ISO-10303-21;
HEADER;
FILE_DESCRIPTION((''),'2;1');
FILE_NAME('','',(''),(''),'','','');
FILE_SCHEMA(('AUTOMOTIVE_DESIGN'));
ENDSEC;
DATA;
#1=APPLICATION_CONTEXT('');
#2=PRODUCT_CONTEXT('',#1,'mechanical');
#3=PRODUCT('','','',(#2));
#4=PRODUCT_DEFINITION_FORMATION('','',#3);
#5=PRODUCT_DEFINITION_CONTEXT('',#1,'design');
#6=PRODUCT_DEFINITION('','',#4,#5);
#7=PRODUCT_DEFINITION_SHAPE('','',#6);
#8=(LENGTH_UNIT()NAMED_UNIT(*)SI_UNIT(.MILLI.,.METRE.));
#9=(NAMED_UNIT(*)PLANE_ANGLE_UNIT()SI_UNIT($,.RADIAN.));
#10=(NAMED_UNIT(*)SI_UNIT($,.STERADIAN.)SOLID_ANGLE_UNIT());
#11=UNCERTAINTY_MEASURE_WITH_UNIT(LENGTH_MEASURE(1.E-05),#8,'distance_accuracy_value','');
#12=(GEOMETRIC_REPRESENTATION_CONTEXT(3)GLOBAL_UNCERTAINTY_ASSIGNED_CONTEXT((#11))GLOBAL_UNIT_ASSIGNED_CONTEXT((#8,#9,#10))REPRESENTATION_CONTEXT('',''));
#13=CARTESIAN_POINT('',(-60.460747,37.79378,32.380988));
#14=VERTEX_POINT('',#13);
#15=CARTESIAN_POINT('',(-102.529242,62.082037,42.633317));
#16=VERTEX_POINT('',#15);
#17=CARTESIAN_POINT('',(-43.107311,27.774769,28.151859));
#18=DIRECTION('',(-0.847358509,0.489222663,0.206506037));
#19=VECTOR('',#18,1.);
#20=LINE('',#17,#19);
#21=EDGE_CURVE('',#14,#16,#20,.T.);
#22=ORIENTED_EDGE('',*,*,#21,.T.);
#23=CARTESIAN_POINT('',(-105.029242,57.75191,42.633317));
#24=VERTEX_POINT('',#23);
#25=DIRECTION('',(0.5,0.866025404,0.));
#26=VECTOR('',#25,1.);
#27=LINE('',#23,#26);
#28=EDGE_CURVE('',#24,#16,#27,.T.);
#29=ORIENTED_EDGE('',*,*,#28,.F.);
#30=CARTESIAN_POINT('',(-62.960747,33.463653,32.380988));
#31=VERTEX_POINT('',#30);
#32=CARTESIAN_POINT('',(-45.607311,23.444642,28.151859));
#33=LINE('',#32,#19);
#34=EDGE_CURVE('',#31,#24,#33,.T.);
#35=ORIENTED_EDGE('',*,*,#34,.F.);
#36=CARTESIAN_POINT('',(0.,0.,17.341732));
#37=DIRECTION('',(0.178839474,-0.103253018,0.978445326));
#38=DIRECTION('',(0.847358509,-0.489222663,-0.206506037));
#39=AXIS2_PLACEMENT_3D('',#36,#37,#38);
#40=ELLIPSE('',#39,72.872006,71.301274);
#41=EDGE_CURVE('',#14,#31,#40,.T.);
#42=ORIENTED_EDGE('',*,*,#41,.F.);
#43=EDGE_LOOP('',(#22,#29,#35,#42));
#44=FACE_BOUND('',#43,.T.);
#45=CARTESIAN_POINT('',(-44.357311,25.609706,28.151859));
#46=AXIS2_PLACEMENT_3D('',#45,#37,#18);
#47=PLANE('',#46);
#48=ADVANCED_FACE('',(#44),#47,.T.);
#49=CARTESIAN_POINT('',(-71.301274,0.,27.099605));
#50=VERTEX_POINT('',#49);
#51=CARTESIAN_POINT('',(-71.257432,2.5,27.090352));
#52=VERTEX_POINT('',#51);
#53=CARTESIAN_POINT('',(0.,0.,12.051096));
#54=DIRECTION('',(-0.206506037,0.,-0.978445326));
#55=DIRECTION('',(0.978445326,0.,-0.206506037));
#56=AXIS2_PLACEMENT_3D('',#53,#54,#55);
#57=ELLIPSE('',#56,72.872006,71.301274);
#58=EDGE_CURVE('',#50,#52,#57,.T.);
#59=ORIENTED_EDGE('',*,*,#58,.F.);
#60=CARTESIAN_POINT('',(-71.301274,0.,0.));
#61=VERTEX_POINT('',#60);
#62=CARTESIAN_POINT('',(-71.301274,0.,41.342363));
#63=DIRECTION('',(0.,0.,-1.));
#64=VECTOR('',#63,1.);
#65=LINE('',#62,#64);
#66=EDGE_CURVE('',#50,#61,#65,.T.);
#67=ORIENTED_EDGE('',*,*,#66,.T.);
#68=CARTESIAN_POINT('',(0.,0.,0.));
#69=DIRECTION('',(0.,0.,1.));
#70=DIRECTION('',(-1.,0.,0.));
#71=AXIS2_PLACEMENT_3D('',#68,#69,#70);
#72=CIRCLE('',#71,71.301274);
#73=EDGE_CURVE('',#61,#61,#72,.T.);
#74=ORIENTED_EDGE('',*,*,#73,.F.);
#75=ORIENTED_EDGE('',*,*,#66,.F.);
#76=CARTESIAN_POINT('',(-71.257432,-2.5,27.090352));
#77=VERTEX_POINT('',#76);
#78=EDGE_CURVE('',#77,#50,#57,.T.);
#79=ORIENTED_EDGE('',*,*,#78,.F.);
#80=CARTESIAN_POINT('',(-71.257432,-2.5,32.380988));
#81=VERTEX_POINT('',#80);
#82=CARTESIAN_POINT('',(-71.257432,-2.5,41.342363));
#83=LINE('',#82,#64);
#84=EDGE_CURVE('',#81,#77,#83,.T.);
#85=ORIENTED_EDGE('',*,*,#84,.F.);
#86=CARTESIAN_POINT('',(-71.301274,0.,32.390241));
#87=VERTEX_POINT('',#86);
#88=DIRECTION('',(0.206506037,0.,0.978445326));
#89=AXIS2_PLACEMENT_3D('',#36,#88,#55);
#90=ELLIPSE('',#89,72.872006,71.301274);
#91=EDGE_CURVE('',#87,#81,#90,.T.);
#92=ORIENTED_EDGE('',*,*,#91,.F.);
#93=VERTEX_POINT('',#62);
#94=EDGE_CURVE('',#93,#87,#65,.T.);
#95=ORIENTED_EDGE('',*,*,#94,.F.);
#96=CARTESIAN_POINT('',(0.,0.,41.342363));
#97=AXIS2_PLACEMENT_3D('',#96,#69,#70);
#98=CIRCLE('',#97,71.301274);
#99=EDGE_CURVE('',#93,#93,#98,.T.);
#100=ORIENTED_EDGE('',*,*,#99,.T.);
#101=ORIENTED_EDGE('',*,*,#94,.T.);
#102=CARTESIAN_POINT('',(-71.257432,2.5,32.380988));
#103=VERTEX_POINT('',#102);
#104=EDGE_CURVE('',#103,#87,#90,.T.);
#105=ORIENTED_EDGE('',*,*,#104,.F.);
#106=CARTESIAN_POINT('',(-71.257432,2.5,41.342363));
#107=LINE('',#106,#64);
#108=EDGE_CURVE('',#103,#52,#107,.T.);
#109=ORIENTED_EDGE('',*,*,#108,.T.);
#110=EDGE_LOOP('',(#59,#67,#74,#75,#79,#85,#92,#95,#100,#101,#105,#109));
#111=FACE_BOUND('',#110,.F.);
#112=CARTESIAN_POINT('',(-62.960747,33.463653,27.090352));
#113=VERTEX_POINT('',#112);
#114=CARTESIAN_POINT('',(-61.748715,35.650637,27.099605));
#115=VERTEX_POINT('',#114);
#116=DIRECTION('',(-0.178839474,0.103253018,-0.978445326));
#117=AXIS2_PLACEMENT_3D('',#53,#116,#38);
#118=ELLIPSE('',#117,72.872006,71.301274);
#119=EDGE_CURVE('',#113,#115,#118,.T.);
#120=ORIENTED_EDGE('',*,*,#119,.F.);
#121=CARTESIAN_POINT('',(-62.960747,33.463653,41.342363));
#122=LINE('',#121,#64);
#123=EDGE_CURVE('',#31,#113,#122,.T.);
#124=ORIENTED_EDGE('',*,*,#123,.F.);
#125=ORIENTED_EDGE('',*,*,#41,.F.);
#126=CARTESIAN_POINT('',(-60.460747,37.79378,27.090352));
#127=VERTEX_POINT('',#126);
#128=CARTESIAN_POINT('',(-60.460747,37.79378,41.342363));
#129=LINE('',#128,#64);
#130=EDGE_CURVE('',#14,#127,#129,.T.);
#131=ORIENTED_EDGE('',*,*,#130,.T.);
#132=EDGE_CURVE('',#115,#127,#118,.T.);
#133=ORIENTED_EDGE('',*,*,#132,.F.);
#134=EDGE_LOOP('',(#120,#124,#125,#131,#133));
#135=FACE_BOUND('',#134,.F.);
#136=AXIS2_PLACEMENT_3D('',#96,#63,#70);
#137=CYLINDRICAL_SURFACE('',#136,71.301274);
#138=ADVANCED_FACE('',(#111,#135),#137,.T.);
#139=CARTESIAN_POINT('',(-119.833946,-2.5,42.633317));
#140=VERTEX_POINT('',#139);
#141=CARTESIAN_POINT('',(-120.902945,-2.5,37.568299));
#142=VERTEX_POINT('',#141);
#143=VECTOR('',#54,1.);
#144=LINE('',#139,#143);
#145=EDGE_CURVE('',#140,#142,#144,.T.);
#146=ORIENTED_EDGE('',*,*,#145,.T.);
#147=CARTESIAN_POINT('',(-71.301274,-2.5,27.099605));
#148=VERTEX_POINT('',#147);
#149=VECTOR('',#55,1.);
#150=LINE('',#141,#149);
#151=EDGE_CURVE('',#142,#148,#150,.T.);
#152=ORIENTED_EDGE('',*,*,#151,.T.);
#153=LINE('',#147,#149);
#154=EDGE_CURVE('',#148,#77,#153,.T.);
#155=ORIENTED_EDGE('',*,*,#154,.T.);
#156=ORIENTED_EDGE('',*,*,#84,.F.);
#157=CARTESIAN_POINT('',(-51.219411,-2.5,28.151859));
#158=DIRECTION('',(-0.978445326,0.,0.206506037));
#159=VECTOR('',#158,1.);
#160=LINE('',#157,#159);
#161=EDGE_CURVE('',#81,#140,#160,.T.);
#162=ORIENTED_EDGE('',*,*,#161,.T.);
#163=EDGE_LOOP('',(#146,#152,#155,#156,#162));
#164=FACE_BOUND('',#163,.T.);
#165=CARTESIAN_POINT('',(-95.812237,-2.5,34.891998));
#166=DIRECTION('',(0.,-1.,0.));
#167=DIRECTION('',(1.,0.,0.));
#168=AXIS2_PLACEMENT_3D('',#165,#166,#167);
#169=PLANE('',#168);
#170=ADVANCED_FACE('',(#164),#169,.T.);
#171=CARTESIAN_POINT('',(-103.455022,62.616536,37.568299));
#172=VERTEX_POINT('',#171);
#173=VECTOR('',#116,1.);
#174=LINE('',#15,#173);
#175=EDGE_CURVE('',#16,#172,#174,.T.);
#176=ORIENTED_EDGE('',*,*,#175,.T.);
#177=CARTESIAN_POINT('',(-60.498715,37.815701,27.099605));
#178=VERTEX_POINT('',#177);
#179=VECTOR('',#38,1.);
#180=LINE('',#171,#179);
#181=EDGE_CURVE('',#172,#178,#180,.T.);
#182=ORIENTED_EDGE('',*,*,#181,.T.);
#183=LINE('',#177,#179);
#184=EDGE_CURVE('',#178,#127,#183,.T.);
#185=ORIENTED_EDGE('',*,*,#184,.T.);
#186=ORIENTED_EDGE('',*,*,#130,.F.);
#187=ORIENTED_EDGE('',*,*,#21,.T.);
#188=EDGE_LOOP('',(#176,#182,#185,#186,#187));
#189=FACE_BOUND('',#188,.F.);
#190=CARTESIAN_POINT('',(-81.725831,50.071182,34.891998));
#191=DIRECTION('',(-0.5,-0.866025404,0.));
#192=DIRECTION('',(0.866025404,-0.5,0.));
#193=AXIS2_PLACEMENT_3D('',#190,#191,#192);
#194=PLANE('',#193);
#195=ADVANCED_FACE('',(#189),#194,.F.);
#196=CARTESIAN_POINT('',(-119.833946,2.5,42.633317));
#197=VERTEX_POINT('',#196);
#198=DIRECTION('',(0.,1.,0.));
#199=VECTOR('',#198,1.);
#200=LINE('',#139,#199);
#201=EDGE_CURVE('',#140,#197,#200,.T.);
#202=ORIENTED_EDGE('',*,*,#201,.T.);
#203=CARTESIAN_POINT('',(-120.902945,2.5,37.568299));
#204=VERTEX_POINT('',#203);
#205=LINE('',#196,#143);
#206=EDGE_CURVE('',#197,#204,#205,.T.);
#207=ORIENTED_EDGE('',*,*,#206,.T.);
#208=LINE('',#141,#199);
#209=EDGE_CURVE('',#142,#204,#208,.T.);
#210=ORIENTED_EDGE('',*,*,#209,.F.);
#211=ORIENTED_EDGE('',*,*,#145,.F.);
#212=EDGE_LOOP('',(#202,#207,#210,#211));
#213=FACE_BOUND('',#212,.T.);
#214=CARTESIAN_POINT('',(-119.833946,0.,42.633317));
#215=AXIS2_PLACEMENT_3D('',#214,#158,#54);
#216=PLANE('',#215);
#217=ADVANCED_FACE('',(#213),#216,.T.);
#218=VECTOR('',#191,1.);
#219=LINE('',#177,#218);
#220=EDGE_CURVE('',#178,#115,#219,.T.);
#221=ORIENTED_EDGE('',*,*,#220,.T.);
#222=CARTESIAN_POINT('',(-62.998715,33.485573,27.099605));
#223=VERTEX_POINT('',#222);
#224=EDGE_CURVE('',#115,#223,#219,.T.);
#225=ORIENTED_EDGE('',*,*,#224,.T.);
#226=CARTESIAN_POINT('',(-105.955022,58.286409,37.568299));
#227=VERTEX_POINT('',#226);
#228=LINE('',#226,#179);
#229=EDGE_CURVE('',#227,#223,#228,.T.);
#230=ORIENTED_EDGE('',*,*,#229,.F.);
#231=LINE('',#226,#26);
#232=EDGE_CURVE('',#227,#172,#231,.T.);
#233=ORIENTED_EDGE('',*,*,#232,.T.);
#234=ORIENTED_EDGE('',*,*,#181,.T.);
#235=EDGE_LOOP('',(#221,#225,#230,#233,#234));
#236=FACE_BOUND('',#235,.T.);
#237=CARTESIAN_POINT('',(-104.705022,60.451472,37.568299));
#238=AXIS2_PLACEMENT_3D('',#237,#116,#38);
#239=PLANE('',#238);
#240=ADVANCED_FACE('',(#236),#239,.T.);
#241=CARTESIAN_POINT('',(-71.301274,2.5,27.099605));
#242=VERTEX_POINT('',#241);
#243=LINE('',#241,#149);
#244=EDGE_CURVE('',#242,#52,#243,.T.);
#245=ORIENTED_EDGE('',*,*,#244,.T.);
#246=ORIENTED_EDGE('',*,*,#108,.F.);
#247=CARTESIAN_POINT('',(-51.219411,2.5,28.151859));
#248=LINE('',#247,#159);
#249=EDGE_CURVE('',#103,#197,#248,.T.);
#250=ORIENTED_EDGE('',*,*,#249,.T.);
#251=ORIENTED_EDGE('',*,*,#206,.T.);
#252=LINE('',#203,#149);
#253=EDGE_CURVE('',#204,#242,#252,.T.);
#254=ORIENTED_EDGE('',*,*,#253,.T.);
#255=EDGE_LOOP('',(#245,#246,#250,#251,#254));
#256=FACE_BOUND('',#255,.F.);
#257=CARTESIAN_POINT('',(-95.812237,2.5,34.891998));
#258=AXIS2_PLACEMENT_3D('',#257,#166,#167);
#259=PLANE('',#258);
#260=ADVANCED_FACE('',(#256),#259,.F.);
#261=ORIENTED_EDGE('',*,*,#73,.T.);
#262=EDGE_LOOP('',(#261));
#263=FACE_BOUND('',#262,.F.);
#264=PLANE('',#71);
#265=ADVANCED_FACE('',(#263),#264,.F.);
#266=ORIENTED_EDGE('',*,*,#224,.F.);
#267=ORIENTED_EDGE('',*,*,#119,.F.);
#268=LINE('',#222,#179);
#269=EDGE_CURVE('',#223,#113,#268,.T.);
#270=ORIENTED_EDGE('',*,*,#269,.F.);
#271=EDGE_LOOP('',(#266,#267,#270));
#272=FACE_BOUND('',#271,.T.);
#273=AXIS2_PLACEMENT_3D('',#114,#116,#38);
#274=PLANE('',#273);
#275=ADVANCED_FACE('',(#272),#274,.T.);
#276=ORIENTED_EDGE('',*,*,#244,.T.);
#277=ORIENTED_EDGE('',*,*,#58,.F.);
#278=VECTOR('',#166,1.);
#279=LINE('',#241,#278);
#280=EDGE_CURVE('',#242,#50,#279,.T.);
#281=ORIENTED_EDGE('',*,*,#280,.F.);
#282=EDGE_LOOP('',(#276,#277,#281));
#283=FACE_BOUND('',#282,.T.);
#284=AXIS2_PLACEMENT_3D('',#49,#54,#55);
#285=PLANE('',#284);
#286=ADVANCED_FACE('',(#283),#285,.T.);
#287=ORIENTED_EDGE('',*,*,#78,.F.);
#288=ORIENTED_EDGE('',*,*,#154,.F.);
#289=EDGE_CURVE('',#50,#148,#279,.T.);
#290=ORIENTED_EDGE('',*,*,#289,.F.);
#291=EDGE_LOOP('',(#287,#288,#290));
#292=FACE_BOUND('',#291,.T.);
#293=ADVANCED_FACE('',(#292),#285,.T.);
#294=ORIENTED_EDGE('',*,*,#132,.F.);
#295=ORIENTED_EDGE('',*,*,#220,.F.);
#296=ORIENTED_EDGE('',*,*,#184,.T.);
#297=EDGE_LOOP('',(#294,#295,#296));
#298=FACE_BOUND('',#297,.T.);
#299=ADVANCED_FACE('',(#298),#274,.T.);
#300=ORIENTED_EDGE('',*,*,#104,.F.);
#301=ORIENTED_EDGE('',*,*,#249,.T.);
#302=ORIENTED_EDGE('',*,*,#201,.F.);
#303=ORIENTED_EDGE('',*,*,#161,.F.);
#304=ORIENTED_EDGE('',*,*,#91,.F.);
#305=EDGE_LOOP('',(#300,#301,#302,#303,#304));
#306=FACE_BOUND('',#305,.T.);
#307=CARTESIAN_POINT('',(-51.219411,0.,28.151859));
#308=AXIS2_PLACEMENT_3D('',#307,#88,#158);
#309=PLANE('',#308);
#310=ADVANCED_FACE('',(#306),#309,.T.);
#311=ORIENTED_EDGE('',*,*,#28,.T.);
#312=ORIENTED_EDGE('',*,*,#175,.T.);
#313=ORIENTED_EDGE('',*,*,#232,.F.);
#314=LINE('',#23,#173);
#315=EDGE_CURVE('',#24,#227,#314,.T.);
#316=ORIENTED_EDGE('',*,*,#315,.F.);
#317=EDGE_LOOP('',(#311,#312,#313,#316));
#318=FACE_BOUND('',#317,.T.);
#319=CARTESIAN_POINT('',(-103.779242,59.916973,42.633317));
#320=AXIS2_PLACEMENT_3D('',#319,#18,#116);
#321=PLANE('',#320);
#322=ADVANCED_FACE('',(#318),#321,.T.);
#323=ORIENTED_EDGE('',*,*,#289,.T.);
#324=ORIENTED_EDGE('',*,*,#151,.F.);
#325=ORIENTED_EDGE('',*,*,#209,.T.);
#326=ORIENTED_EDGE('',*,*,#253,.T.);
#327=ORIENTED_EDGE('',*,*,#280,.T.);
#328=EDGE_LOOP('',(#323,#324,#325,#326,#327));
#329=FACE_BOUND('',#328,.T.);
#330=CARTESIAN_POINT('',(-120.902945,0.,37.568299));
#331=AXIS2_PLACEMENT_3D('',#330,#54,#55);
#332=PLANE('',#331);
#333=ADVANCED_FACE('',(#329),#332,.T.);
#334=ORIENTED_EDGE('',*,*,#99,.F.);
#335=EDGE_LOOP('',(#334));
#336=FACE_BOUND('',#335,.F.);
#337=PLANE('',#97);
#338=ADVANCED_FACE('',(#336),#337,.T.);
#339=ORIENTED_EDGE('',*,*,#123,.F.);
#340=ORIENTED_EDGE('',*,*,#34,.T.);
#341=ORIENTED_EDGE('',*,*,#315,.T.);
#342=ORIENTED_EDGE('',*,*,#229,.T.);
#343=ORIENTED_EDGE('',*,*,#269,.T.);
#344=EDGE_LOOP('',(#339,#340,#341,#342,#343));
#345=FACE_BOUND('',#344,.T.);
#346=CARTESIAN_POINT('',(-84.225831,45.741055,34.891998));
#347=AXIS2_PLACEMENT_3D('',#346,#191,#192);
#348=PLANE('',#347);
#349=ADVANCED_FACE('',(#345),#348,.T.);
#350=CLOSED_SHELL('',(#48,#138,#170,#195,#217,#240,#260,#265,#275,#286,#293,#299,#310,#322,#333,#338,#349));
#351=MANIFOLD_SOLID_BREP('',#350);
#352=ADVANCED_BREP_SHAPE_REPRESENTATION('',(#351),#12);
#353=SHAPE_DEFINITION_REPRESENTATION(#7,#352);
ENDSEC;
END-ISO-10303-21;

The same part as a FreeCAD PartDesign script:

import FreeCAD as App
import Part
import Sketcher

V = App.Vector
Q = App.Units.Quantity

doc = App.newDocument("Part")
body = doc.addObject("PartDesign::Body", "Body")

# Sketch on XZ plane
sketch1 = body.newObject("Sketcher::SketchObject", "Sketch")
sketch1.AttachmentSupport = (doc.getObject("XZ_Plane"), [""])
sketch1.MapMode = "FlatFace"
sketch1.addGeometry([
    Part.LineSegment(V(-71, 0, 0), V(0, 0, 0)),
    Part.LineSegment(V(0, 0, 0), V(0, 41, 0)),
    Part.LineSegment(V(0, 41, 0), V(-71, 41, 0)),
    Part.LineSegment(V(-71, 41, 0), V(-71, 0, 0)),
], False)
sketch1.addConstraint([
    Sketcher.Constraint("Coincident", 0, 2, 1, 1),
    Sketcher.Constraint("Coincident", 1, 2, 2, 1),
    Sketcher.Constraint("Coincident", 2, 2, 3, 1),
    Sketcher.Constraint("Coincident", 3, 2, 0, 1),
    Sketcher.Constraint("Horizontal", 0),
    Sketcher.Constraint("Vertical", 1),
    Sketcher.Constraint("Horizontal", 2),
    Sketcher.Constraint("Vertical", 3),
    Sketcher.Constraint("Coincident", 0, 2, -1, 1),
    Sketcher.Constraint("DistanceX", 0, 1, 0, 2, Q("71.301274 mm")),
    Sketcher.Constraint("DistanceY", 1, 1, 1, 2, Q("41.342363 mm")),
])
revolution = body.newObject("PartDesign::Revolution", "Revolution")
revolution.Profile = sketch1
revolution.ReferenceAxis = (sketch1, ["V_Axis"])
revolution.Angle = 360

# Sketch on XZ plane
sketch2 = body.newObject("Sketcher::SketchObject", "Sketch001")
sketch2.AttachmentSupport = (doc.getObject("XZ_Plane"), [""])
sketch2.MapMode = "FlatFace"
sketch2.addGeometry([
    Part.LineSegment(V(-121, 38, 0), V(-71, 27, 0)),  # 0
    Part.LineSegment(V(-71, 27, 0), V(-52, 23, 0)),  # 1
    Part.LineSegment(V(-52, 23, 0), V(-51, 28, 0)),  # 2
    Part.LineSegment(V(-51, 28, 0), V(-120, 43, 0)),  # 3
    Part.LineSegment(V(-120, 43, 0), V(-121, 38, 0)),  # 4
], False)
sketch2.addConstraint([
    Sketcher.Constraint("Coincident", 0, 2, 1, 1),
    Sketcher.Constraint("Coincident", 1, 2, 2, 1),
    Sketcher.Constraint("Coincident", 2, 2, 3, 1),
    Sketcher.Constraint("Coincident", 3, 2, 4, 1),
    Sketcher.Constraint("Coincident", 4, 2, 0, 1),
    Sketcher.Constraint("Parallel", 0, 1),
    Sketcher.Constraint("Perpendicular", 1, 2),
    Sketcher.Constraint("Perpendicular", 2, 3),
    Sketcher.Constraint("Perpendicular", 3, 4),
    Sketcher.Constraint("DistanceX", 1, 2, 2, 2, Q("1.068999 mm")),
    Sketcher.Constraint("Distance", 2, Q("5.176598 mm")),
    Sketcher.Constraint("DistanceY", -1, 1, 4, 2, Q("37.568299 mm")),
    Sketcher.Constraint("Distance", 0, Q("50.694372 mm")),
    Sketcher.Constraint("Distance", 1, Q("19.431708 mm")),
    Sketcher.Constraint("DistanceX", 1, 2, -1, 1, Q("52.28841 mm")),
])
pad1 = body.newObject("PartDesign::Pad", "Pad")
pad1.Profile = sketch2
pad1.Length = 5
pad1.Midplane = True
doc.recompute()

polarpattern = body.newObject("PartDesign::PolarPattern", "PolarPattern")
polarpattern.Originals = [pad1]
polarpattern.Axis = (doc.getObject("Z_Axis"), [""])
polarpattern.Angle = 30
polarpattern.Occurrences = 2
polarpattern.Reversed = True
body.Tip = polarpattern

doc.recompute()
